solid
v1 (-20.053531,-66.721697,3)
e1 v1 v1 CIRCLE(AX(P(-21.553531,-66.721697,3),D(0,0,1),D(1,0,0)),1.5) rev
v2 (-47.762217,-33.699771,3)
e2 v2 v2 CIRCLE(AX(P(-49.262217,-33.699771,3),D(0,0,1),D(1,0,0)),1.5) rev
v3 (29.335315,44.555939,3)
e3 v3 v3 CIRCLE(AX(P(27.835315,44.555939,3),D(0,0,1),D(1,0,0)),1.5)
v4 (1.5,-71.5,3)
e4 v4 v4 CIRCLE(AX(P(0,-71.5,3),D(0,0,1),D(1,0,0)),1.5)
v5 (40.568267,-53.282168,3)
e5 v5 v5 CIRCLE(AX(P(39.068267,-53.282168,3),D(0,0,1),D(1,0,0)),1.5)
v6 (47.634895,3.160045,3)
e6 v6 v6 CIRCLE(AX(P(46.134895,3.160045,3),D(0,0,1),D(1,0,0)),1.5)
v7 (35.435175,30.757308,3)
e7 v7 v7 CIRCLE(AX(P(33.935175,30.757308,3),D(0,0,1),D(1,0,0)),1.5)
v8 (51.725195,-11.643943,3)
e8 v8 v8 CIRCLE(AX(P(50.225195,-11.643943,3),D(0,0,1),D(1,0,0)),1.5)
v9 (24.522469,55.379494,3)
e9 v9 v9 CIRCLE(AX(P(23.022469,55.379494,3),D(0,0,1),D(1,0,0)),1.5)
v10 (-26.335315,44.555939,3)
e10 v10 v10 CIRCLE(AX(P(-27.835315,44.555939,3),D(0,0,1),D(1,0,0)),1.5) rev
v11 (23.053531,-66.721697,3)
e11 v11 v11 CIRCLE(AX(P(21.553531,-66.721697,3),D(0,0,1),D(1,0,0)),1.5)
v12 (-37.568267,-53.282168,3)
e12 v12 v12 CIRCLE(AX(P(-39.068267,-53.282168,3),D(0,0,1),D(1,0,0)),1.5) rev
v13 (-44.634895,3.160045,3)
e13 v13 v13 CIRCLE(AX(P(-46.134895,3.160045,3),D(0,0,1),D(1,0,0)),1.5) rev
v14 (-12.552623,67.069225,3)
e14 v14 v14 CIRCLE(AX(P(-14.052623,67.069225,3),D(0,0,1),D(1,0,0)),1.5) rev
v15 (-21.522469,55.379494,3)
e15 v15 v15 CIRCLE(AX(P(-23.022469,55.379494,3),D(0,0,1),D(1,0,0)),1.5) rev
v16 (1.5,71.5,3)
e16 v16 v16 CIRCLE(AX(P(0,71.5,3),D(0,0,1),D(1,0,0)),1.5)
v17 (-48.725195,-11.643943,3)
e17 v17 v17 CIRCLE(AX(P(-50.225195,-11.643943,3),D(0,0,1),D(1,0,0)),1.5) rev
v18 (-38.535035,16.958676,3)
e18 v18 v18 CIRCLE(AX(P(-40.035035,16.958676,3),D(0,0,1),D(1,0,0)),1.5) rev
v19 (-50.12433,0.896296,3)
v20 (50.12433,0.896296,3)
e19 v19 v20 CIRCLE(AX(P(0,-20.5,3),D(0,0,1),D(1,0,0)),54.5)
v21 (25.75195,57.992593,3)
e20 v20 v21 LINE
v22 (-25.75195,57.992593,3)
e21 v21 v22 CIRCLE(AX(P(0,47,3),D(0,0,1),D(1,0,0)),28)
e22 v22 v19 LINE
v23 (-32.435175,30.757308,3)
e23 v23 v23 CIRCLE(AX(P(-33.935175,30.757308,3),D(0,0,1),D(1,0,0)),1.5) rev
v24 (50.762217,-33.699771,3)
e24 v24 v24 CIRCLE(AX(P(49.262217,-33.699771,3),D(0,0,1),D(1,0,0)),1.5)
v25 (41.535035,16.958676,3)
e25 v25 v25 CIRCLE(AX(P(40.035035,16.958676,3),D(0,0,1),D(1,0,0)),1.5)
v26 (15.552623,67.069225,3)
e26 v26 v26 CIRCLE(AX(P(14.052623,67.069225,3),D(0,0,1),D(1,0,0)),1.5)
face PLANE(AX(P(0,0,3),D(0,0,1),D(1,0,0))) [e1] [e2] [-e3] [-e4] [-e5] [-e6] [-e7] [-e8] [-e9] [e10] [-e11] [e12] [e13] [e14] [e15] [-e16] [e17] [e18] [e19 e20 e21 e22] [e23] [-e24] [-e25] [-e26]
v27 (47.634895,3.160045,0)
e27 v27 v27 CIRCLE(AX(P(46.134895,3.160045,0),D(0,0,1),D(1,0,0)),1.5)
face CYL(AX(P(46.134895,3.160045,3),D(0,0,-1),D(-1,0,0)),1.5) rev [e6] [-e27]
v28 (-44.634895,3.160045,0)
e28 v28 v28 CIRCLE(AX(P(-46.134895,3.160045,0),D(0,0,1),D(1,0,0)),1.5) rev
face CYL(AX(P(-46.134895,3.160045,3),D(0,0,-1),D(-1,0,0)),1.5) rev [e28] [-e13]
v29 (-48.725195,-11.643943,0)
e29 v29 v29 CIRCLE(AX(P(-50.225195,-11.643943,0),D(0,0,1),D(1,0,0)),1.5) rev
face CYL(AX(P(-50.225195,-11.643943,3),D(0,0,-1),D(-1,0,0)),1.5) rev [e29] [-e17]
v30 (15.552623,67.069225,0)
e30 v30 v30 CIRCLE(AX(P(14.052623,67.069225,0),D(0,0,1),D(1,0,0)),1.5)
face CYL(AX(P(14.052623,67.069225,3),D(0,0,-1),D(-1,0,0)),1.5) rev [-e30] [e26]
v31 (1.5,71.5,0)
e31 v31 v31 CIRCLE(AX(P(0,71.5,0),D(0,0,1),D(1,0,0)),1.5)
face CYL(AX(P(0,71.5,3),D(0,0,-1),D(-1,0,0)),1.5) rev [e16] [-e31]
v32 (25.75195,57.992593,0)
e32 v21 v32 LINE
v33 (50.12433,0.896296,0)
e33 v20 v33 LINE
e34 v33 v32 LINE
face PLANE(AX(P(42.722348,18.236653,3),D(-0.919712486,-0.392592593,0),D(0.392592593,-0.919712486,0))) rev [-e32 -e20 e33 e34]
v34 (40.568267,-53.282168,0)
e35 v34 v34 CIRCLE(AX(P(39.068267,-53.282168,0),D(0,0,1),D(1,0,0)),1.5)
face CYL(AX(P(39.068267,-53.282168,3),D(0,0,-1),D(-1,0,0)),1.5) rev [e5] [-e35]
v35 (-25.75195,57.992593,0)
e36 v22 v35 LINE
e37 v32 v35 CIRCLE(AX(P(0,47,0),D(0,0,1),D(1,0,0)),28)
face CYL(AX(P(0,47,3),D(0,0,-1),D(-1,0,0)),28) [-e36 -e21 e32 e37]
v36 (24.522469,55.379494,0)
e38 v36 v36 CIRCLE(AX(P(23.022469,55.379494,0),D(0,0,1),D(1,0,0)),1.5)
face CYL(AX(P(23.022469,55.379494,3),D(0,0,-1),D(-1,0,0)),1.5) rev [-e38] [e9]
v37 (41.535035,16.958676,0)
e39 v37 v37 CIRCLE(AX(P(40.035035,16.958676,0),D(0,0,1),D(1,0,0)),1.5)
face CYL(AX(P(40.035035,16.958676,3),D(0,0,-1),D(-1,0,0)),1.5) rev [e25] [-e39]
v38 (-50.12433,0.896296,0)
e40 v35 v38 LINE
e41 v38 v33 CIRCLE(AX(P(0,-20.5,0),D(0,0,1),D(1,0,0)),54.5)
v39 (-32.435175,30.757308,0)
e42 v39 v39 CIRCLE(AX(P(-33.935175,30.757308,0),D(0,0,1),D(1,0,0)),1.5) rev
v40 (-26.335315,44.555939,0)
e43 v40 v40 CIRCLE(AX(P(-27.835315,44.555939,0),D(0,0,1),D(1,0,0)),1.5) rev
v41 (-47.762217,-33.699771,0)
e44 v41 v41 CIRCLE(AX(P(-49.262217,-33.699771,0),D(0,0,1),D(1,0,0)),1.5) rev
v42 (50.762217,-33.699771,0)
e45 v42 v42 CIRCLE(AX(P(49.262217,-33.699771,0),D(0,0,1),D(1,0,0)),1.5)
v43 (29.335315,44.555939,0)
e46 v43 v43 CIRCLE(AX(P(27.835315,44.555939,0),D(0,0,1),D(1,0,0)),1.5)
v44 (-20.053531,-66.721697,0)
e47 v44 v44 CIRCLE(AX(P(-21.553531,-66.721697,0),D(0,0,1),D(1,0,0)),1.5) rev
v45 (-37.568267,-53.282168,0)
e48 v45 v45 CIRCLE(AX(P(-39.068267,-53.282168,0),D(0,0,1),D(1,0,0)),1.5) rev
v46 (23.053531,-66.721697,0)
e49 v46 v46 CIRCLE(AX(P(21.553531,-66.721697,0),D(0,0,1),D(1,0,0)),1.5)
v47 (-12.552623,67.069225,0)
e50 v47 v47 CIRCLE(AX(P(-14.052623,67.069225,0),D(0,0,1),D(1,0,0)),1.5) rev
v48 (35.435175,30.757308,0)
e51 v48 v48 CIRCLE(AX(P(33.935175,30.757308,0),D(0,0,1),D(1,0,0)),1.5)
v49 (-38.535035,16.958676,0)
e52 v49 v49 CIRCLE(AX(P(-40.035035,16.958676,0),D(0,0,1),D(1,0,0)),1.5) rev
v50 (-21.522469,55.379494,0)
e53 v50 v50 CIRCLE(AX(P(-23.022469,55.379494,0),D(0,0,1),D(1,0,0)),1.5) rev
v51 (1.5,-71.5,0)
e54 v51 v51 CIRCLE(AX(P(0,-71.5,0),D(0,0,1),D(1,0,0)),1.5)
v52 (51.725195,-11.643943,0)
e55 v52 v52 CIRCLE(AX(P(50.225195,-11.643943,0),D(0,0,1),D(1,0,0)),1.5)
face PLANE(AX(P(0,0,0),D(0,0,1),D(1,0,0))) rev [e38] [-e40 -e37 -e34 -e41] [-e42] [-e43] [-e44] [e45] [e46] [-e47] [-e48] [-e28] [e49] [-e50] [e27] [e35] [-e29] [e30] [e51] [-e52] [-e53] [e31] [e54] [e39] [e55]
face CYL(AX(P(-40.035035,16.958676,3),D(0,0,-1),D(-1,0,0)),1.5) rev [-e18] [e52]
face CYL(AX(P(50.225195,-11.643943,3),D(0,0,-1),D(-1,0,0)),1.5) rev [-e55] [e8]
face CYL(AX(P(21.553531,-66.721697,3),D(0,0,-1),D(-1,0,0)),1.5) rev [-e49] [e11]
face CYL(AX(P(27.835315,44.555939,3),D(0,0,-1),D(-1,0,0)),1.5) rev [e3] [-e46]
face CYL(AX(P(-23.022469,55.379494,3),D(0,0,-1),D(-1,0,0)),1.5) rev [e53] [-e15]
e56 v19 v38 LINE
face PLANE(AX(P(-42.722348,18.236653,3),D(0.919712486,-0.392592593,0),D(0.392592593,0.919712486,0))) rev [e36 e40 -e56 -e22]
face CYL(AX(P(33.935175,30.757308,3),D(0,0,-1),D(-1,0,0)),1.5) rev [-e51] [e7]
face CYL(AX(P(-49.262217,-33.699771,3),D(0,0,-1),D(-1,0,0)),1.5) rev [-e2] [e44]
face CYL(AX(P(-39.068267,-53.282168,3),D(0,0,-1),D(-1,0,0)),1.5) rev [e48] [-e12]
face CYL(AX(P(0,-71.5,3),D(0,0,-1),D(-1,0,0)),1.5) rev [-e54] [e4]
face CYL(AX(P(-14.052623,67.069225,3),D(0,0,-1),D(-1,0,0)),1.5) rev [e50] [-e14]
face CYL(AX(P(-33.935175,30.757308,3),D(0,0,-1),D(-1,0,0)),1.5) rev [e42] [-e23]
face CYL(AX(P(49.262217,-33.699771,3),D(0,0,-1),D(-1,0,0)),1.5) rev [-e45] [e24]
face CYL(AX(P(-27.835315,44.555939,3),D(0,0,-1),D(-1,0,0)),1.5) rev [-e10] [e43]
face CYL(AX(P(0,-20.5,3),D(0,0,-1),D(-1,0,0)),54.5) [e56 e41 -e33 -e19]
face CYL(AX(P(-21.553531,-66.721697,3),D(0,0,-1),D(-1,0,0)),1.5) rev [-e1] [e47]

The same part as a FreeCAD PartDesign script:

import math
import FreeCAD as App
import Part
import Sketcher

V = App.Vector

doc = App.newDocument("Part")
body = doc.addObject("PartDesign::Body", "Body")

sketch1 = body.newObject("Sketcher::SketchObject", "Sketch")
sketch1.AttachmentSupport = (doc.getObject("XY_Plane"), [""])
sketch1.MapMode = "FlatFace"
sketch1.addGeometry([
    Part.LineSegment(V(-25.8, 58, 0), V(-50.1, 0.9, 0)),
    Part.ArcOfCircle(Part.Circle(V(0, -20.5, 0), V(0, 0, 1), 54.5), math.radians(157), math.radians(383)),
    Part.LineSegment(V(50.1, 0.9, 0), V(25.8, 58, 0)),
    Part.ArcOfCircle(Part.Circle(V(0, 47, 0), V(0, 0, 1), 28), math.radians(23), math.radians(157)),
    Part.Circle(V(-39.1, -53.3, 0), V(0, 0, 1), 1.5),
    Part.Circle(V(-21.6, -66.7, 0), V(0, 0, 1), 1.5),
    Part.Circle(V(0, -71.5, 0), V(0, 0, 1), 1.5),
    Part.Circle(V(-49.3, -33.7, 0), V(0, 0, 1), 1.5),
    Part.Circle(V(-50.2, -11.6, 0), V(0, 0, 1), 1.5),
    Part.Circle(V(21.6, -66.7, 0), V(0, 0, 1), 1.5),
    Part.Circle(V(39.1, -53.3, 0), V(0, 0, 1), 1.5),
    Part.Circle(V(49.3, -33.7, 0), V(0, 0, 1), 1.5),
    Part.Circle(V(50.2, -11.6, 0), V(0, 0, 1), 1.5),
    Part.Circle(V(-46.1, 3.2, 0), V(0, 0, 1), 1.5),
    Part.Circle(V(-40, 17, 0), V(0, 0, 1), 1.5),
    Part.Circle(V(-33.9, 30.8, 0), V(0, 0, 1), 1.5),
    Part.Circle(V(-27.8, 44.6, 0), V(0, 0, 1), 1.5),
    Part.Circle(V(-23, 55.4, 0), V(0, 0, 1), 1.5),
    Part.Circle(V(-14.1, 67.1, 0), V(0, 0, 1), 1.5),
    Part.Circle(V(0, 71.5, 0), V(0, 0, 1), 1.5),
    Part.Circle(V(46.1, 3.2, 0), V(0, 0, 1), 1.5),
    Part.Circle(V(40, 17, 0), V(0, 0, 1), 1.5),
    Part.Circle(V(33.9, 30.8, 0), V(0, 0, 1), 1.5),
    Part.Circle(V(23, 55.4, 0), V(0, 0, 1), 1.5),
    Part.Circle(V(14.1, 67.1, 0), V(0, 0, 1), 1.5),
    Part.Circle(V(27.8, 44.6, 0), V(0, 0, 1), 1.5),
], False)
sketch1.addConstraint([
    Sketcher.Constraint("Tangent", 0, 2, 1, 1),
    Sketcher.Constraint("Tangent", 1, 2, 2, 1),
    Sketcher.Constraint("Tangent", 2, 2, 3, 1),
    Sketcher.Constraint("Tangent", 3, 2, 0, 1),
    Sketcher.Constraint("Equal", 4, 5),
    Sketcher.Constraint("Equal", 5, 6),
    Sketcher.Constraint("Equal", 6, 7),
    Sketcher.Constraint("Equal", 7, 8),
    Sketcher.Constraint("Equal", 8, 9),
    Sketcher.Constraint("Equal", 9, 10),
    Sketcher.Constraint("Equal", 10, 11),
    Sketcher.Constraint("Equal", 11, 12),
    Sketcher.Constraint("Equal", 12, 13),
    Sketcher.Constraint("Equal", 13, 14),
    Sketcher.Constraint("Equal", 14, 15),
    Sketcher.Constraint("Equal", 15, 16),
    Sketcher.Constraint("Equal", 16, 17),
    Sketcher.Constraint("Equal", 17, 18),
    Sketcher.Constraint("Equal", 18, 19),
    Sketcher.Constraint("Equal", 19, 20),
    Sketcher.Constraint("Equal", 20, 21),
    Sketcher.Constraint("Equal", 21, 22),
    Sketcher.Constraint("Equal", 22, 23),
    Sketcher.Constraint("Equal", 23, 24),
    Sketcher.Constraint("Equal", 24, 25),
    Sketcher.Constraint("Symmetric", 6, 3, 19, 3, -1, 1),
    Sketcher.Constraint("Symmetric", 5, 3, 9, 3, -2),
    Sketcher.Constraint("Symmetric", 4, 3, 10, 3, -2),
    Sketcher.Constraint("Symmetric", 7, 3, 11, 3, -2),
    Sketcher.Constraint("Symmetric", 8, 3, 12, 3, -2),
    Sketcher.Constraint("Symmetric", 13, 3, 20, 3, -2),
    Sketcher.Constraint("Symmetric", 14, 3, 21, 3, -2),
    Sketcher.Constraint("Symmetric", 15, 3, 22, 3, -2),
    Sketcher.Constraint("Symmetric", 17, 3, 23, 3, -2),
    Sketcher.Constraint("Symmetric", 18, 3, 24, 3, -2),
    Sketcher.Constraint("Symmetric", 16, 3, 25, 3, -2),
    Sketcher.Constraint("Symmetric", 0, 2, 1, 2, -2),
    Sketcher.Constraint("PointOnObject", 6, 3, -2),
    Sketcher.Constraint("Diameter", 4, 3.0),
    Sketcher.Constraint("Radius", 3, 28.0),
    Sketcher.Constraint("Radius", 1, 54.5),
    Sketcher.Constraint("DistanceY", -1, 1, 3, 3, 47.0),
    Sketcher.Constraint("DistanceY", 6, 3, 1, 3, 51.0),
    Sketcher.Constraint("DistanceY", 1, 3, -1, 1, 20.5),
    Sketcher.Constraint("DistanceX", 8, 3, 13, 3, 4.0903),
    Sketcher.Constraint("DistanceY", 23, 3, 2, 2, 2.613099),
    Sketcher.Constraint("DistanceY", 4, 3, -1, 1, 53.282168),
    Sketcher.Constraint("DistanceX", 5, 3, -1, 1, 21.553531),
    Sketcher.Constraint("DistanceY", 7, 3, -1, 1, 33.699771),
    Sketcher.Constraint("DistanceY", -1, 1, 16, 3, 44.555939),
    Sketcher.Constraint("DistanceX", 17, 3, -1, 1, 23.022469),
    Sketcher.Constraint("DistanceY", 5, 3, 4, 3, 13.439529),
    Sketcher.Constraint("DistanceX", 7, 3, 4, 3, 10.193951),
    Sketcher.Constraint("DistanceX", 8, 3, 7, 3, 0.962978),
    Sketcher.Constraint("DistanceY", 7, 3, 8, 3, 22.055828),
    Sketcher.Constraint("DistanceX", 7, 3, 9, 3, 70.815748),
    Sketcher.Constraint("DistanceX", 13, 3, 14, 3, 6.09986),
    Sketcher.Constraint("DistanceY", 13, 3, 14, 3, 13.798632),
    Sketcher.Constraint("DistanceY", 8, 3, 14, 3, 28.602619),
    Sketcher.Constraint("DistanceX", 14, 3, 15, 3, 6.09986),
    Sketcher.Constraint("DistanceY", 14, 3, 15, 3, 13.798632),
    Sketcher.Constraint("DistanceX", 15, 3, 16, 3, 6.09986),
    Sketcher.Constraint("DistanceY", 17, 3, 18, 3, 11.689732),
    Sketcher.Constraint("DistanceX", 18, 3, 23, 3, 37.075092),
])
pad1 = body.newObject("PartDesign::Pad", "Pad")
pad1.Profile = sketch1
pad1.Length = 3

doc.recompute()
